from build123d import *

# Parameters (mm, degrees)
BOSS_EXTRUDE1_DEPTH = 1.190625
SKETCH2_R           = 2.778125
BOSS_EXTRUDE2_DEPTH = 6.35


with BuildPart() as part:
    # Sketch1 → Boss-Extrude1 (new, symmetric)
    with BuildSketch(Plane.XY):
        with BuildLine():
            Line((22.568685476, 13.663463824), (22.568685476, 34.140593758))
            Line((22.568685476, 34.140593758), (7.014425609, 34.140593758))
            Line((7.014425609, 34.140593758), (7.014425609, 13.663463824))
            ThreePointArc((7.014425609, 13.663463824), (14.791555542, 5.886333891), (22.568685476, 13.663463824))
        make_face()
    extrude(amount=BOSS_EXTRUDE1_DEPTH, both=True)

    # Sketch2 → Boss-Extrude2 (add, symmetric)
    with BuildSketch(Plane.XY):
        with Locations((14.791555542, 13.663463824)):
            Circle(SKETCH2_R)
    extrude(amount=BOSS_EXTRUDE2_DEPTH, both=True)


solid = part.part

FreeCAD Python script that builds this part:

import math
import FreeCAD as App
import Part
import Sketcher
from FreeCAD import Vector
Q = App.Units.Quantity

doc = App.newDocument("Part")
body = doc.addObject("PartDesign::Body", "Body")

# Sketch on XY plane
sketch1 = body.newObject("Sketcher::SketchObject", "Sketch")
sketch1.AttachmentSupport = (doc.getObject("XY_Plane"), [""])
sketch1.MapMode = "FlatFace"
sketch1.addGeometry([
    Part.LineSegment(Vector(23, 14, 0), Vector(23, 34, 0)),
    Part.LineSegment(Vector(23, 34, 0), Vector(7, 34, 0)),
    Part.LineSegment(Vector(7, 34, 0), Vector(7, 14, 0)),
    Part.ArcOfCircle(Part.Circle(Vector(15, 14, 0), Vector(0, 0, 1), 8), math.radians(180), math.radians(360)),
], False)
sketch1.addConstraint([
    Sketcher.Constraint("Coincident", 0, 2, 1, 1),
    Sketcher.Constraint("Coincident", 1, 2, 2, 1),
    Sketcher.Constraint("Tangent", 2, 2, 3, 1),
    Sketcher.Constraint("Tangent", 3, 2, 0, 1),
    Sketcher.Constraint("Vertical", 0),
    Sketcher.Constraint("Horizontal", 1),
    Sketcher.Constraint("Vertical", 2),
    Sketcher.Constraint("Radius", 3, Q("7.77713 mm")),
    Sketcher.Constraint("DistanceY", 0, 1, 0, 2, Q("20.47713 mm")),
    Sketcher.Constraint("DistanceX", -1, 1, 3, 3, Q("14.791556 mm")),
    Sketcher.Constraint("DistanceY", -1, 1, 3, 3, Q("13.663464 mm")),
])
pad1 = body.newObject("PartDesign::Pad", "Pad")
pad1.Profile = sketch1
pad1.Length = Q("0.09375 in")
pad1.Midplane = True

# Sketch on XY plane
sketch2 = body.newObject("Sketcher::SketchObject", "Sketch001")
sketch2.AttachmentSupport = (doc.getObject("XY_Plane"), [""])
sketch2.MapMode = "FlatFace"
sketch2.addGeometry(Part.Circle(Vector(14.8, 13.7, 0), Vector(0, 0, 1), 2.8), False)
sketch2.addConstraint([
    Sketcher.Constraint("Diameter", 0, Q("0.21875 in")),
    Sketcher.Constraint("DistanceX", -1, 1, 0, 3, Q("14.791556 mm")),
    Sketcher.Constraint("DistanceY", -1, 1, 0, 3, Q("13.663464 mm")),
])
pad2 = body.newObject("PartDesign::Pad", "Pad001")
pad2.Profile = sketch2
pad2.Length = Q("0.5 in")
pad2.Midplane = True

doc.recompute()
